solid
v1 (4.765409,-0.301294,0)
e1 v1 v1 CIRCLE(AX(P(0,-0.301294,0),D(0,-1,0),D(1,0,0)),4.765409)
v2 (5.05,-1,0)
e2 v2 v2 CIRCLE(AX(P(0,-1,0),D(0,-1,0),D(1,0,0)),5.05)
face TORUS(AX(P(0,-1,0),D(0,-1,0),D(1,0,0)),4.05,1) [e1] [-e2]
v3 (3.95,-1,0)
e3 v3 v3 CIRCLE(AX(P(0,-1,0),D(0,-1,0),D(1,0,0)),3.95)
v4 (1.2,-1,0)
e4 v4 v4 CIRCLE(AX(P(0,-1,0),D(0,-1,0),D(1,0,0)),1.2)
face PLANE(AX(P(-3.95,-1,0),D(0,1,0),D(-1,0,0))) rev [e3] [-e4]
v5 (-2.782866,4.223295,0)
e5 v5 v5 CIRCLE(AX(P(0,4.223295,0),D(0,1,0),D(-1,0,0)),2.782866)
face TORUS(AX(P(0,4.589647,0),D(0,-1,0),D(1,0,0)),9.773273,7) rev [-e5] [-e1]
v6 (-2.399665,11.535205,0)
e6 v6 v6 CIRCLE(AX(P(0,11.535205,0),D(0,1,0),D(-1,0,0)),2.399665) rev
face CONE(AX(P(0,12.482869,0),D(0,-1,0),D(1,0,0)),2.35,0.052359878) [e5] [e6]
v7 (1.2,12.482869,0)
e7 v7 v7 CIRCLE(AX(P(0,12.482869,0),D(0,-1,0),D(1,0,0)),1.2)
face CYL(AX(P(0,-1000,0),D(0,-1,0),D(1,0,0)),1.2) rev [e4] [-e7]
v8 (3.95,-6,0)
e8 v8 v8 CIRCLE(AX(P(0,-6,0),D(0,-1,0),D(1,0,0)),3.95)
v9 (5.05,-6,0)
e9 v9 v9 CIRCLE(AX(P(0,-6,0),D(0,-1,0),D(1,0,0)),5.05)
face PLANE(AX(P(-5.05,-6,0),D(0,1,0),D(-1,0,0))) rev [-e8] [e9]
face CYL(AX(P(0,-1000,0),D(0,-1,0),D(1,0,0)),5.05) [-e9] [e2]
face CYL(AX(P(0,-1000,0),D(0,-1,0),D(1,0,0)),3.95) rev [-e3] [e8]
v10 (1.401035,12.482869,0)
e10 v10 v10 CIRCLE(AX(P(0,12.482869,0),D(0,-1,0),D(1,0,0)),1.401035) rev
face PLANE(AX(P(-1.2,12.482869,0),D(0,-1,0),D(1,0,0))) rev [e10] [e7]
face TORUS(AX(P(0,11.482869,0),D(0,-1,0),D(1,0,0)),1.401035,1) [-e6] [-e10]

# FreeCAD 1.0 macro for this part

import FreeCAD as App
import Part
import Sketcher

V = App.Vector
Q = App.Units.Quantity


def edges_at(feature, points):
    """Names of the edges that pass closest to the given points."""
    edges = feature.Shape.Edges
    near = lambda p: min(range(len(edges)), key=lambda i: edges[i].distToShape(Part.Vertex(*p))[0])
    return sorted({f"Edge{near(p) + 1}" for p in points})

doc = App.newDocument("Part")
body = doc.addObject("PartDesign::Body", "Body")

sketch1 = body.newObject("Sketcher::SketchObject", "Sketch")
sketch1.AttachmentSupport = (doc.getObject("XY_Plane"), [""])
sketch1.MapMode = "FlatFace"
sketch1.addGeometry([
    Part.LineSegment(V(-2.4, 12.5, 0), V(-3, 0, 0)),
    Part.LineSegment(V(-3, 0, 0), V(-5, 0, 0)),
    Part.LineSegment(V(-5, 0, 0), V(-5, -6, 0)),
    Part.LineSegment(V(-5, -6, 0), V(-4, -6, 0)),
    Part.LineSegment(V(-4, -6, 0), V(-4, -1, 0)),
    Part.LineSegment(V(-4, -1, 0), V(-1.2, -1, 0)),
    Part.LineSegment(V(-1.2, -1, 0), V(-1.2, 12.5, 0)),
    Part.LineSegment(V(-1.2, 12.5, 0), V(-2.4, 12.5, 0)),
], False)
sketch1.addConstraint([
    Sketcher.Constraint("Coincident", 0, 2, 1, 1),
    Sketcher.Constraint("Coincident", 1, 2, 2, 1),
    Sketcher.Constraint("Coincident", 2, 2, 3, 1),
    Sketcher.Constraint("Coincident", 3, 2, 4, 1),
    Sketcher.Constraint("Coincident", 4, 2, 5, 1),
    Sketcher.Constraint("Coincident", 5, 2, 6, 1),
    Sketcher.Constraint("Coincident", 6, 2, 7, 1),
    Sketcher.Constraint("Coincident", 7, 2, 0, 1),
    Sketcher.Constraint("Horizontal", 1),
    Sketcher.Constraint("Vertical", 2),
    Sketcher.Constraint("Horizontal", 3),
    Sketcher.Constraint("Vertical", 4),
    Sketcher.Constraint("Horizontal", 5),
    Sketcher.Constraint("Vertical", 6),
    Sketcher.Constraint("Horizontal", 7),
    Sketcher.Constraint("PointOnObject", 0, 2, -1),
    Sketcher.Constraint("DistanceY", 2, 2, 2, 1, 6.0),
    Sketcher.Constraint("DistanceY", 4, 1, 4, 2, 5.0),
    Sketcher.Constraint("Angle", 0, Q("-93 deg")),
    Sketcher.Constraint("DistanceX", 3, 1, 3, 2, 1.1),
    Sketcher.Constraint("Distance", 0, 12.5),
    Sketcher.Constraint("DistanceX", 5, 1, 5, 2, 2.75),
    Sketcher.Constraint("DistanceX", 7, 2, 7, 1, 1.15),
    Sketcher.Constraint("DistanceX", 5, 2, -1, 1, 1.2),
])
revolution = body.newObject("PartDesign::Revolution", "Revolution")
revolution.Profile = sketch1
revolution.ReferenceAxis = (sketch1, ["V_Axis"])
revolution.Angle = 360
doc.recompute()

fillet = body.newObject("PartDesign::Fillet", "Fillet")
fillet.Base = (revolution, edges_at(revolution, [(2.35, 12.483, 0), (5.05, 0, 0)]))
fillet.Radius = 1
doc.recompute()

fillet2 = body.newObject("PartDesign::Fillet", "Fillet001")
fillet2.Base = (fillet, edges_at(fillet, [(3.004, 0, 0)]))
fillet2.Radius = 7

doc.recompute()
